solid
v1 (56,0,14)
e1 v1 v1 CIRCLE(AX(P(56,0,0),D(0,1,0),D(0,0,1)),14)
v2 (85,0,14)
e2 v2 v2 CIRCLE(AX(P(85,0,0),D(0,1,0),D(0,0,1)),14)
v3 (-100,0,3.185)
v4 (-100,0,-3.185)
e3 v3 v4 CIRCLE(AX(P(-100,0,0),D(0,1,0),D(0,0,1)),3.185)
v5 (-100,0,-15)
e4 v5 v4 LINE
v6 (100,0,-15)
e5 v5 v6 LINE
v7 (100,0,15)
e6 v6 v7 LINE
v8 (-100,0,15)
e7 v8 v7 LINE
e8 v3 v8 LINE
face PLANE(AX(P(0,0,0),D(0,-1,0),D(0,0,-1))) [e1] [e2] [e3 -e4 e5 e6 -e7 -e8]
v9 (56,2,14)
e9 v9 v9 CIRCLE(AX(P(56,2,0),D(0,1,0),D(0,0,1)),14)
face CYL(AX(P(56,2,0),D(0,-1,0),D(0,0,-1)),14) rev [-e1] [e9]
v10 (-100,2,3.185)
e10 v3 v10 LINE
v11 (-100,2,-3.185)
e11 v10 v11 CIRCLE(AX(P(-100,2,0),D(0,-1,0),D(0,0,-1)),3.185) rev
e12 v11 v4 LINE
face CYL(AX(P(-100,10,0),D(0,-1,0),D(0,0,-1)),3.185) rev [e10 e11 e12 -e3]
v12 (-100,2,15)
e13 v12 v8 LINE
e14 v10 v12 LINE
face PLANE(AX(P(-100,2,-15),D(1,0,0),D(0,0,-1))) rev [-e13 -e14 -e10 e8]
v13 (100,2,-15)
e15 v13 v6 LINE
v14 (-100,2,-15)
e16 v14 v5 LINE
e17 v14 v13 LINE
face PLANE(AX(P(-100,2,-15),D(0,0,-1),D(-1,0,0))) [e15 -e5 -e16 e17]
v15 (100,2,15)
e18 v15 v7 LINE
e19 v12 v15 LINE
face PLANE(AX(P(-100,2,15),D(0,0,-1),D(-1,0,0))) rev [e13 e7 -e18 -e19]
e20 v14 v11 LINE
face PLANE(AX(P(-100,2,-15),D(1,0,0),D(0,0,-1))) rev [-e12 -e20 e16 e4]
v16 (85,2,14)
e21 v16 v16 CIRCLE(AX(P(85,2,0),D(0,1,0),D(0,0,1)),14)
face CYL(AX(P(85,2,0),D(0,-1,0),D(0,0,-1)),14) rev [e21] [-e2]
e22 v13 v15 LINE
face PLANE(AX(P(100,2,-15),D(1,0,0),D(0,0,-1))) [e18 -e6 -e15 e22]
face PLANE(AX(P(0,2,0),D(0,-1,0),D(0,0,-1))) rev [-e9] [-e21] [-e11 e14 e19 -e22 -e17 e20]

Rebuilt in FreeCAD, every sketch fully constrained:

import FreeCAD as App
import Part
import Sketcher

V = App.Vector
Q = App.Units.Quantity


def add_polygon(sketch, points):
    """Adds a closed chain of lines whose ends are joined by coincident constraints."""
    first, n = sketch.GeometryCount, len(points)
    for a, b in zip(points, points[1:] + points[:1]):
        sketch.addGeometry(Part.LineSegment(App.Vector(*a, 0), App.Vector(*b, 0)), False)
    for i in range(n):
        sketch.addConstraint(Sketcher.Constraint("Coincident", first + i, 2, first + (i + 1) % n, 1))

doc = App.newDocument("Part")
body = doc.addObject("PartDesign::Body", "Body")

sketch1 = doc.addObject("Sketcher::SketchObject", "Sketch")
body.addObject(sketch1)
sketch1.AttachmentSupport = (doc.XZ_Plane, [""])
sketch1.MapMode = "FlatFace"
add_polygon(sketch1, [(-100, -15), (-100, 15), (100, 15), (100, -15)])
sketch1.addGeometry(Part.Circle(V(56, 0, 0), V(0, 0, 1), 14), False)
sketch1.addGeometry(Part.Circle(V(85, 0, 0), V(0, 0, 1), 14), False)
sketch1.addConstraint([
    Sketcher.Constraint("Vertical", 0),
    Sketcher.Constraint("Horizontal", 1),
    Sketcher.Constraint("Vertical", 2),
    Sketcher.Constraint("Horizontal", 3),
    Sketcher.Constraint("Equal", 4, 5),
    Sketcher.Constraint("Symmetric", 0, 2, 2, 2, -1, 1),
    Sketcher.Constraint("PointOnObject", 4, 3, -1),
    Sketcher.Constraint("PointOnObject", 5, 3, -1),
    Sketcher.Constraint("Diameter", 4, Q("28 mm")),
    Sketcher.Constraint("DistanceX", 1, 1, 1, 2, Q("200 mm")),
    Sketcher.Constraint("DistanceY", 0, 1, 0, 2, Q("30 mm")),
    Sketcher.Constraint("DistanceX", -1, 1, 4, 3, Q("56 mm")),
    Sketcher.Constraint("DistanceX", -1, 1, 5, 3, Q("85 mm")),
])
pad1 = doc.addObject("PartDesign::Pad", "Pad")
body.addObject(pad1)
pad1.Profile = sketch1
pad1.Length = 2
pad1.Reversed = True

sketch2 = doc.addObject("Sketcher::SketchObject", "Sketch001")
body.addObject(sketch2)
sketch2.AttachmentSupport = (doc.XZ_Plane, [""])
sketch2.MapMode = "FlatFace"
sketch2.addGeometry(Part.Circle(V(-100, 0, 0), V(0, 0, 1), 3.185), False)
sketch2.addConstraint([
    Sketcher.Constraint("PointOnObject", 0, 3, -1),
    Sketcher.Constraint("Diameter", 0, Q("6.37 mm")),
    Sketcher.Constraint("DistanceX", 0, 3, -1, 1, Q("100 mm")),
])
pocket1 = doc.addObject("PartDesign::Pocket", "Pocket")
body.addObject(pocket1)
pocket1.Profile = sketch2
pocket1.Length = 10

doc.recompute()
